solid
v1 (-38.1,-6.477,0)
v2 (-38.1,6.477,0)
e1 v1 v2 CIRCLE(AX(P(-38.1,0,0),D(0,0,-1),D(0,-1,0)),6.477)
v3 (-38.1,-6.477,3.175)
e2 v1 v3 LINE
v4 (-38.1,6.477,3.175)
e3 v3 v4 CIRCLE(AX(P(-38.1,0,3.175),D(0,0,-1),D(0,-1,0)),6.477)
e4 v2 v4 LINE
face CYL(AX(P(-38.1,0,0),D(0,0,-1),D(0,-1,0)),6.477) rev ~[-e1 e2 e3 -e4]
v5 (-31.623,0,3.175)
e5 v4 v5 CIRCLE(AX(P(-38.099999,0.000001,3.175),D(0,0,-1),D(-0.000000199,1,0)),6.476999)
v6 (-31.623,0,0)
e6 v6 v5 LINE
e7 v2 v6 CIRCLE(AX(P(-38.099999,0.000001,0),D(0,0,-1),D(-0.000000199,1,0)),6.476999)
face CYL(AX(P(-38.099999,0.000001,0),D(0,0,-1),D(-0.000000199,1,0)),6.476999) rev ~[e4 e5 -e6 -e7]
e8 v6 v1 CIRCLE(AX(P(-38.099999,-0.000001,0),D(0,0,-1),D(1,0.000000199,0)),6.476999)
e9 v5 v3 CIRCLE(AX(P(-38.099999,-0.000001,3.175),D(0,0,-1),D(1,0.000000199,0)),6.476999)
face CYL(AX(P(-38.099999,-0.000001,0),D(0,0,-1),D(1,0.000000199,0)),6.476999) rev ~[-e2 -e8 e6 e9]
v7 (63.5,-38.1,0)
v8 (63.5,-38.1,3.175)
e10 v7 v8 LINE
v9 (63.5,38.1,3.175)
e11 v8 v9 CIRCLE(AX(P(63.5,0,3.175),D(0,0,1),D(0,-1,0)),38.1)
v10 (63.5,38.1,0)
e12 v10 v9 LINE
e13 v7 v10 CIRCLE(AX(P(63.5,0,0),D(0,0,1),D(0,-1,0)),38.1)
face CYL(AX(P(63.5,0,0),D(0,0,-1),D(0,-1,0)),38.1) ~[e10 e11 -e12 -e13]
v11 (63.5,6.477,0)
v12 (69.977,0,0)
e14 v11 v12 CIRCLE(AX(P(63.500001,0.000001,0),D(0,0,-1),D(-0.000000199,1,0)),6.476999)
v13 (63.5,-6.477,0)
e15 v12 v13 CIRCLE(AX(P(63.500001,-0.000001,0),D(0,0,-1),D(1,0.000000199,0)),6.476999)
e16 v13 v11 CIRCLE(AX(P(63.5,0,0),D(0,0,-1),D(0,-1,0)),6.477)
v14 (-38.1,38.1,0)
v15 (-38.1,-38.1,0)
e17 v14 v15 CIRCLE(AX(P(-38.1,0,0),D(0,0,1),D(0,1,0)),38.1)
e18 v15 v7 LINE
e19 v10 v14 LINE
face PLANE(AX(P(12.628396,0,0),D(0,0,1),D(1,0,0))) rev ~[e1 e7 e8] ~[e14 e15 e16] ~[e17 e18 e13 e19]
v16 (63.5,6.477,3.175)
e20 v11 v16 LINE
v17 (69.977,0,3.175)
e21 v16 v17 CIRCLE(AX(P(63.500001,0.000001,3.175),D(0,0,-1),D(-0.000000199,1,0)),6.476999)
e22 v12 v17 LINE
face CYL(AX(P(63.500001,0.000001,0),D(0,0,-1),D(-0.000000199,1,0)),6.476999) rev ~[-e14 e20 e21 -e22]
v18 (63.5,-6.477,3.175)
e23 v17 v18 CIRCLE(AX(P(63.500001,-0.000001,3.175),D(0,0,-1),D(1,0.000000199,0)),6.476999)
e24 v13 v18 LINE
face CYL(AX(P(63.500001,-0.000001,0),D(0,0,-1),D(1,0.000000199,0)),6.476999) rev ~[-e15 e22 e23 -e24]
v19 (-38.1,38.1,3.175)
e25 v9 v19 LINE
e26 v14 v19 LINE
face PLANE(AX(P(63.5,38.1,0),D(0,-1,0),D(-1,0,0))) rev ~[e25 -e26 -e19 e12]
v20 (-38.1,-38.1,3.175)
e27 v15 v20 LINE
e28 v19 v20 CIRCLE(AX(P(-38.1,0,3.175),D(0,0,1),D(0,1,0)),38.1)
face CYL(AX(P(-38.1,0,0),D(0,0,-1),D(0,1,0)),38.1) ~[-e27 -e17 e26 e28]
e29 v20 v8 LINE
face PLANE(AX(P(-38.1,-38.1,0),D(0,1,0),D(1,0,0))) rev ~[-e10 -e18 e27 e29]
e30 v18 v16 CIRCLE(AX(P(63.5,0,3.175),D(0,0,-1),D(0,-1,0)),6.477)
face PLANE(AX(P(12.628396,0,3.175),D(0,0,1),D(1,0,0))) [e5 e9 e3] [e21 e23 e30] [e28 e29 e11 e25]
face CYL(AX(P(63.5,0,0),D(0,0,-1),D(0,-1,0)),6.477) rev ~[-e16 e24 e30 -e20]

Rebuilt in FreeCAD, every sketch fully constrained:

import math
import FreeCAD as App
import Part
import Sketcher
from FreeCAD import Vector
Q = App.Units.Quantity

doc = App.newDocument("Part")
body = doc.addObject("PartDesign::Body", "Body")

sketch1 = body.newObject("Sketcher::SketchObject", "Sketch")
sketch1.AttachmentSupport = (doc.getObject("XY_Plane"), [""])
sketch1.MapMode = "FlatFace"
sketch1.addGeometry(Part.LineSegment(Vector(64, 38, 0), Vector(-38, 38, 0)), False)
sketch1.addGeometry(Part.ArcOfCircle(Part.Circle(Vector(-38, 0, 0), Vector(0, 0, 1), 38), math.radians(90), math.radians(270)), False)
sketch1.addGeometry(Part.LineSegment(Vector(-38, -38, 0), Vector(64, -38, 0)), False)
sketch1.addGeometry(Part.ArcOfCircle(Part.Circle(Vector(64, 0, 0), Vector(0, 0, 1), 38), math.radians(-90), math.radians(90)), False)
sketch1.addGeometry(Part.ArcOfCircle(Part.Circle(Vector(64, 0, 0), Vector(0, 0, 1), 6), math.radians(90), math.radians(270)), False)
sketch1.addGeometry(Part.ArcOfCircle(Part.Circle(Vector(64, 0, 0), Vector(0, 0, 1), 6), math.radians(0), math.radians(90)), False)
sketch1.addGeometry(Part.ArcOfCircle(Part.Circle(Vector(64, 0, 0), Vector(0, 0, 1), 6), math.radians(-90), math.radians(0)), False)
sketch1.addGeometry(Part.ArcOfCircle(Part.Circle(Vector(-38, 0, 0), Vector(0, 0, 1), 6), math.radians(0), math.radians(90)), False)
sketch1.addGeometry(Part.ArcOfCircle(Part.Circle(Vector(-38, 0, 0), Vector(0, 0, 1), 6), math.radians(-90), math.radians(0)), False)
sketch1.addGeometry(Part.ArcOfCircle(Part.Circle(Vector(-38, 0, 0), Vector(0, 0, 1), 6), math.radians(90), math.radians(270)), False)
sketch1.addConstraint(Sketcher.Constraint("Tangent", 0, 2, 1, 1))
sketch1.addConstraint(Sketcher.Constraint("Tangent", 1, 2, 2, 1))
sketch1.addConstraint(Sketcher.Constraint("Tangent", 2, 2, 3, 1))
sketch1.addConstraint(Sketcher.Constraint("Tangent", 3, 2, 0, 1))
sketch1.addConstraint(Sketcher.Constraint("Tangent", 4, 1, 5, 2))
sketch1.addConstraint(Sketcher.Constraint("Tangent", 5, 1, 6, 2))
sketch1.addConstraint(Sketcher.Constraint("Tangent", 6, 1, 4, 2))
sketch1.addConstraint(Sketcher.Constraint("Tangent", 7, 1, 8, 2))
sketch1.addConstraint(Sketcher.Constraint("Tangent", 8, 1, 9, 2))
sketch1.addConstraint(Sketcher.Constraint("Tangent", 9, 1, 7, 2))
sketch1.addConstraint(Sketcher.Constraint("Horizontal", 0))
sketch1.addConstraint(Sketcher.Constraint("Horizontal", 2))
sketch1.addConstraint(Sketcher.Constraint("Coincident", 4, 3, 3, 3))
sketch1.addConstraint(Sketcher.Constraint("Coincident", 7, 3, 1, 3))
sketch1.addConstraint(Sketcher.Constraint("Equal", 6, 7))
sketch1.addConstraint(Sketcher.Constraint("Symmetric", 4, 1, 6, 1, -1))
sketch1.addConstraint(Sketcher.Constraint("PointOnObject", 5, 1, -1))
sketch1.addConstraint(Sketcher.Constraint("PointOnObject", 7, 1, -1))
sketch1.addConstraint(Sketcher.Constraint("Vertical", 3, 2, 4, 1))
sketch1.addConstraint(Sketcher.Constraint("Vertical", 1, 2, 8, 1))
sketch1.addConstraint(Sketcher.Constraint("Vertical", 8, 1, 9, 1))
sketch1.addConstraint(Sketcher.Constraint("Radius", 1, Q("1.5 in")))
sketch1.addConstraint(Sketcher.Constraint("DistanceX", 0, 2, 0, 1, Q("4 in")))
sketch1.addConstraint(Sketcher.Constraint("Radius", 4, Q("0.255 in")))
sketch1.addConstraint(Sketcher.Constraint("DistanceX", 1, 3, -1, 1, Q("1.5 in")))
pad1 = body.newObject("PartDesign::Pad", "Pad")
pad1.Profile = sketch1
pad1.Length = Q("0.125 in")

doc.recompute()
